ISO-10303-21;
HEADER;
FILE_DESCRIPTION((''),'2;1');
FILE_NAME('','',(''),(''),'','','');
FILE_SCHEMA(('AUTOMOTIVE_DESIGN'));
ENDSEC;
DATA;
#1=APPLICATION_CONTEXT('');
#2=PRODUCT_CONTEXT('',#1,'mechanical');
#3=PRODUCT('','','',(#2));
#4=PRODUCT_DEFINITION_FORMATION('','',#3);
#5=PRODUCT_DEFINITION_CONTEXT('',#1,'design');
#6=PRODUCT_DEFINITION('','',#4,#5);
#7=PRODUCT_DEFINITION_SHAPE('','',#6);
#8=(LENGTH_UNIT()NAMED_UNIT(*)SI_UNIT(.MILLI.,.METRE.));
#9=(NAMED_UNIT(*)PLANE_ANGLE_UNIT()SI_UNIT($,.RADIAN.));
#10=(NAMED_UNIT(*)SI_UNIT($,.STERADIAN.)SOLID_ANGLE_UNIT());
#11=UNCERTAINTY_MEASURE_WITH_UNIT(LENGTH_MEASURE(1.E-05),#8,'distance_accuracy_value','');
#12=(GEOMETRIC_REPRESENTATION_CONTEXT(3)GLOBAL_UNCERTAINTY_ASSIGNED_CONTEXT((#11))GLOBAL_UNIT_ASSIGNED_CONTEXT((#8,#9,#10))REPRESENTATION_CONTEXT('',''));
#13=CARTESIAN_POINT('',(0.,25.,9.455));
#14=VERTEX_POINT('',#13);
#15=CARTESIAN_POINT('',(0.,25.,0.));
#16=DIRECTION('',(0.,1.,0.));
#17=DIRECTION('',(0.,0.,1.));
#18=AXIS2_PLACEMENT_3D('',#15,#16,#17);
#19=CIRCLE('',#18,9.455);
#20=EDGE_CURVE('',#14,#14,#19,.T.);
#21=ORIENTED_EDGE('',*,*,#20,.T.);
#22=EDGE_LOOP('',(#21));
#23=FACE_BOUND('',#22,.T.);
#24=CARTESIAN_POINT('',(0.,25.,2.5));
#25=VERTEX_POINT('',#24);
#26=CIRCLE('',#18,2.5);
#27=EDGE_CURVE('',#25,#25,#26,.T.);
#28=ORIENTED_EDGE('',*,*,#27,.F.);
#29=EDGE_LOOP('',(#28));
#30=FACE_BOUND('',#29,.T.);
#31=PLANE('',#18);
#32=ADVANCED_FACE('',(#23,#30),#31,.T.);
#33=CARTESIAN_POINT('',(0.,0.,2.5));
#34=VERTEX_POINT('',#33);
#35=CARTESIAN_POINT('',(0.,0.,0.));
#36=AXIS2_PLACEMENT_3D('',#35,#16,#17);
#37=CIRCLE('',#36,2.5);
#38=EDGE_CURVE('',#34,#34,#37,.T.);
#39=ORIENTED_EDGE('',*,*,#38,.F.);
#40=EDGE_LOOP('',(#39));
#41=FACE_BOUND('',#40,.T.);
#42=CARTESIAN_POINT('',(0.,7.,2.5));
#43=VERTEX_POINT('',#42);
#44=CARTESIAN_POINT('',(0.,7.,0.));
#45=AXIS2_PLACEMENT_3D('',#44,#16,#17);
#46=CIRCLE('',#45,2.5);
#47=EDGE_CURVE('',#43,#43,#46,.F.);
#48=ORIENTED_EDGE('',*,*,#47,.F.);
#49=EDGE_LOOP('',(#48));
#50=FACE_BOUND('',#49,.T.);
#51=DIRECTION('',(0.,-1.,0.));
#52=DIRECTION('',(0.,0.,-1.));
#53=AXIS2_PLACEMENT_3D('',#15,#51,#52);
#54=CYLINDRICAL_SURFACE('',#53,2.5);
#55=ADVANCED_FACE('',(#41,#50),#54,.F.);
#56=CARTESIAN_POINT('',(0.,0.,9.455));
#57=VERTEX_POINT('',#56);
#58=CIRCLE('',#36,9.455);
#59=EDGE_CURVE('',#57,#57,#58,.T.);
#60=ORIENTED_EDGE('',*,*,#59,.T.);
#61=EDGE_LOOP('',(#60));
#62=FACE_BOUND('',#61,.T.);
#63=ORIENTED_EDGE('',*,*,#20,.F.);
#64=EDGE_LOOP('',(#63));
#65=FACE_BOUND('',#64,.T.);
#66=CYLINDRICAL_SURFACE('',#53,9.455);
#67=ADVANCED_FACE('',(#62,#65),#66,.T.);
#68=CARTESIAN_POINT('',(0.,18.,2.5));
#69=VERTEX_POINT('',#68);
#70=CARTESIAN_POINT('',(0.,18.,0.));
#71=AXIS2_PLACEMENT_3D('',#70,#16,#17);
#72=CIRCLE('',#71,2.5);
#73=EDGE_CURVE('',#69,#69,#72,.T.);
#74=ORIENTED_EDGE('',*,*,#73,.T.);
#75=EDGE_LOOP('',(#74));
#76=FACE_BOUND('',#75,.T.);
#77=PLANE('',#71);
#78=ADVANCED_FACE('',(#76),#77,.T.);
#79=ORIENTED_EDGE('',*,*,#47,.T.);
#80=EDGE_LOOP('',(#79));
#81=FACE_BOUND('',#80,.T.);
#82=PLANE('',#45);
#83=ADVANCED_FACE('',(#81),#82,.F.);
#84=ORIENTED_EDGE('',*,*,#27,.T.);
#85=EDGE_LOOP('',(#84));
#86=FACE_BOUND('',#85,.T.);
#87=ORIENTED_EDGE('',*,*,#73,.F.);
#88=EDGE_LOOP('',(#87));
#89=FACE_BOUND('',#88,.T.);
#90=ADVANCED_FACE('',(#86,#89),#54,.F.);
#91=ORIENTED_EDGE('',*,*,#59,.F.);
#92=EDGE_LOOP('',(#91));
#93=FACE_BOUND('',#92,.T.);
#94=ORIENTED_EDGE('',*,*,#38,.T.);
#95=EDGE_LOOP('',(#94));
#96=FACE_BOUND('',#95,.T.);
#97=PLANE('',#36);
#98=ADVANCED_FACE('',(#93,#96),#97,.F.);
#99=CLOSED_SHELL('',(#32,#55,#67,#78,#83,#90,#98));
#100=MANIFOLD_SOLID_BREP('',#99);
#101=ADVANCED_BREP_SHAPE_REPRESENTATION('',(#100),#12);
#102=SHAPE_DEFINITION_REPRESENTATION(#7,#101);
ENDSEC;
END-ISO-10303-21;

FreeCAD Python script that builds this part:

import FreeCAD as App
import Part
import Sketcher
Q = App.Units.Quantity

doc = App.newDocument("Part")
body = doc.addObject("PartDesign::Body", "Body")

# Sketch on XZ plane
sketch1 = body.newObject("Sketcher::SketchObject", "Sketch")
sketch1.AttachmentSupport = (doc.getObject("XZ_Plane"), [""])
sketch1.MapMode = "FlatFace"
sketch1.addGeometry(Part.Circle(App.Vector(0, 0, 0), App.Vector(0, 0, 1), 9.5), False)
sketch1.addGeometry(Part.Circle(App.Vector(0, 0, 0), App.Vector(0, 0, 1), 2.5), False)
sketch1.addConstraint(Sketcher.Constraint("Coincident", 0, 3, -1, 1))
sketch1.addConstraint(Sketcher.Constraint("Coincident", 1, 3, -1, 1))
sketch1.addConstraint(Sketcher.Constraint("Diameter", 1, Q("5 mm")))
sketch1.addConstraint(Sketcher.Constraint("Diameter", 0, Q("18.91 mm")))
pad1 = body.newObject("PartDesign::Pad", "Pad")
pad1.Profile = sketch1
pad1.Length = 25
pad1.Reversed = True

# Sketch on XZ plane
sketch2 = body.newObject("Sketcher::SketchObject", "Sketch001")
sketch2.AttachmentSupport = (doc.getObject("XZ_Plane"), [""])
sketch2.MapMode = "FlatFace"
sketch2.AttachmentOffset = App.Placement(App.Vector(0, 0, -7), App.Rotation())
sketch2.addGeometry(Part.Circle(App.Vector(0, 0, 0), App.Vector(0, 0, 1), 2.5), False)
sketch2.addConstraint(Sketcher.Constraint("Coincident", 0, 3, -1, 1))
sketch2.addConstraint(Sketcher.Constraint("Diameter", 0, Q("5 mm")))
pad2 = body.newObject("PartDesign::Pad", "Pad001")
pad2.Profile = sketch2
pad2.Length = 11
pad2.Reversed = True

doc.recompute()
